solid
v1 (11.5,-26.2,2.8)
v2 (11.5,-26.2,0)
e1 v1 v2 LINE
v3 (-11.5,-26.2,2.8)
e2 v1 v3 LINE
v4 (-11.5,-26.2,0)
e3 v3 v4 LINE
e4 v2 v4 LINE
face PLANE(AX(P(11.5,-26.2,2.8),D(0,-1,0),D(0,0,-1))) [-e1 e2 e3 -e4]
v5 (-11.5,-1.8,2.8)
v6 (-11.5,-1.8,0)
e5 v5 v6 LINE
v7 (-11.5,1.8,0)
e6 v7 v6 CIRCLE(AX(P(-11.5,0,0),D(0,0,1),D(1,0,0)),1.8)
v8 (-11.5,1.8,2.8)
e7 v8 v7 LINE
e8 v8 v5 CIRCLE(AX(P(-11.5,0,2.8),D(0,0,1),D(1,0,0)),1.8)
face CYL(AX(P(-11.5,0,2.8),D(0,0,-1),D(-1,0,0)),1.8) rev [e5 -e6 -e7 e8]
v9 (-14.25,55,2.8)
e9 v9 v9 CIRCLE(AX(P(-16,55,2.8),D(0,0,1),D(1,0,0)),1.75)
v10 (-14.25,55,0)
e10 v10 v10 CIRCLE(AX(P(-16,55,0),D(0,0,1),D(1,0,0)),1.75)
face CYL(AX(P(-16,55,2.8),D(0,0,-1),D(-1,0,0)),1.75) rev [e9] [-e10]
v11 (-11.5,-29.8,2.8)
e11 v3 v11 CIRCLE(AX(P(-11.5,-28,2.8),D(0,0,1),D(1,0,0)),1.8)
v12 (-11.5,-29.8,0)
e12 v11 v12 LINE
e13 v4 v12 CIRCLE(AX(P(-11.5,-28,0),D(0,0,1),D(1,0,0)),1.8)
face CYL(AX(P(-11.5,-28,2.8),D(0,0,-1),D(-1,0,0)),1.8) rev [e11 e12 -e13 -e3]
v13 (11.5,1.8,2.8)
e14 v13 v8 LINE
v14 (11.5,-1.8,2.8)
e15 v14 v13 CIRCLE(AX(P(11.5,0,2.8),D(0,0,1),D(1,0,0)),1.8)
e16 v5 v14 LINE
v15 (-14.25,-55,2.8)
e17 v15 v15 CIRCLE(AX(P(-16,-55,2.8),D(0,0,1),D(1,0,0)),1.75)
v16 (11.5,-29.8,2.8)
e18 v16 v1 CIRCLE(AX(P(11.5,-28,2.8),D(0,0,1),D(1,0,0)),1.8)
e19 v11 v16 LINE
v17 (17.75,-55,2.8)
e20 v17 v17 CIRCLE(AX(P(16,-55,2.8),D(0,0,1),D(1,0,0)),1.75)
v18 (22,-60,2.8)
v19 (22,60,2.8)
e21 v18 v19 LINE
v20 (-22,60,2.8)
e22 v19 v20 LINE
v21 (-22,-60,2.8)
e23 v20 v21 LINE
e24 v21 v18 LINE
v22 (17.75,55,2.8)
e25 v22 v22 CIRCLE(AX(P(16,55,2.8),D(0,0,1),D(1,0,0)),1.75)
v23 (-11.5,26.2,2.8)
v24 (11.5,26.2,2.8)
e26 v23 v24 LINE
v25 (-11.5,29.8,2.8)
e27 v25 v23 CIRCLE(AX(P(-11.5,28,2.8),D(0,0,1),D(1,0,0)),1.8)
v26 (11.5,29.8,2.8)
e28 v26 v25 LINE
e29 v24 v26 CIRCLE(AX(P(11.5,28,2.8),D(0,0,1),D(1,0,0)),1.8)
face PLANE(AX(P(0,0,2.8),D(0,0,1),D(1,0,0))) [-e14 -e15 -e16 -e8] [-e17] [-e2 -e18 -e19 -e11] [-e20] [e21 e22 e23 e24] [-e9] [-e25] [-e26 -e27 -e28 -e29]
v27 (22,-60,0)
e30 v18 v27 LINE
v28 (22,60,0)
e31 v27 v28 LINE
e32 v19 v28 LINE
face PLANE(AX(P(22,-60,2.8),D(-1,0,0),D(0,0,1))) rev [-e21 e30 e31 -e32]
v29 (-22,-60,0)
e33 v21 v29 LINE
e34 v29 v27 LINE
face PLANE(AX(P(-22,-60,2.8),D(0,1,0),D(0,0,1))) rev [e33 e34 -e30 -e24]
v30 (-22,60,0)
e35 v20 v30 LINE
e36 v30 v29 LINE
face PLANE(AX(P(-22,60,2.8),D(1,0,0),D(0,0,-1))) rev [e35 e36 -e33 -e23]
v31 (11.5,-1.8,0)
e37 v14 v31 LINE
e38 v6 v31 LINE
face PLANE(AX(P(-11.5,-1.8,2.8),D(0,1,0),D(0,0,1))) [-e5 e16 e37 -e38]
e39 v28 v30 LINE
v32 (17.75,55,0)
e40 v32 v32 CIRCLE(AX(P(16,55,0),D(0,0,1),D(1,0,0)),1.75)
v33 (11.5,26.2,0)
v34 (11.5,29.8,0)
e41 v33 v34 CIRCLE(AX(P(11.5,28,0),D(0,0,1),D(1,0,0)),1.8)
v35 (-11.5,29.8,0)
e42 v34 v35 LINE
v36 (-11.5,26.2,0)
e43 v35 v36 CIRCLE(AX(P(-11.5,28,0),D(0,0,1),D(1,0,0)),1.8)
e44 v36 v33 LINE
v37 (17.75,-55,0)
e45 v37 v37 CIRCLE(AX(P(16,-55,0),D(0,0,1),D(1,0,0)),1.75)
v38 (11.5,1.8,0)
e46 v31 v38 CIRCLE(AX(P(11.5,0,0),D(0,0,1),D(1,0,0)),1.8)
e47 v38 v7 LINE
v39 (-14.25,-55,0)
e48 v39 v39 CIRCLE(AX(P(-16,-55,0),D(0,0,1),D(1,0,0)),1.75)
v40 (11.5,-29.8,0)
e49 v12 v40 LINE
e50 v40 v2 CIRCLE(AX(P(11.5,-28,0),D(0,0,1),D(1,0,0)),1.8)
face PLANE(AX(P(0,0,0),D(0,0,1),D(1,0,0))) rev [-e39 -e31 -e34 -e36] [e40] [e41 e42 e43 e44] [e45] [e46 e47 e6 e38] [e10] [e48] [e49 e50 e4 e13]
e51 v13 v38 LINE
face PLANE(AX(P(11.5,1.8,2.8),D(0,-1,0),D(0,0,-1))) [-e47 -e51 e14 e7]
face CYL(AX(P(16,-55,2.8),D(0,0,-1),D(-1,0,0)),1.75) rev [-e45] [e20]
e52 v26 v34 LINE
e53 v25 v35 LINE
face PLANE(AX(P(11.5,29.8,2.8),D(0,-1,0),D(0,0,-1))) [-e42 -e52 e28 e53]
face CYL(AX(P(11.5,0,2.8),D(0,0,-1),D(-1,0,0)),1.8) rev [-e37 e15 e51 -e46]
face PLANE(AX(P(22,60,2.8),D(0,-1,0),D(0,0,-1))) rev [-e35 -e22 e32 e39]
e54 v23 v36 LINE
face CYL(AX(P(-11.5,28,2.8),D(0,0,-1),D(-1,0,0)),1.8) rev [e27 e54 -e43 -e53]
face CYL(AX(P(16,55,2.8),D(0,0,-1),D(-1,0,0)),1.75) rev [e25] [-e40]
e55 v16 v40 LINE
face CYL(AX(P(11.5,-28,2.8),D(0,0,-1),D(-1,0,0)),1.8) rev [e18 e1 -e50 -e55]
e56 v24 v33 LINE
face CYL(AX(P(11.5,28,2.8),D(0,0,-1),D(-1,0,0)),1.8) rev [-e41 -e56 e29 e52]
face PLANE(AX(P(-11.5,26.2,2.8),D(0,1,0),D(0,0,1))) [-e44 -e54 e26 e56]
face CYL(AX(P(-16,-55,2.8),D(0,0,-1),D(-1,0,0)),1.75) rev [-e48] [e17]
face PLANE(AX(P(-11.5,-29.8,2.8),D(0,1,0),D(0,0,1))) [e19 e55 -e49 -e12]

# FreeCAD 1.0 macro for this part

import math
import FreeCAD as App
import Part
import Sketcher
from FreeCAD import Vector
Q = App.Units.Quantity


def add_polygon(sketch, points):
    """Adds a closed chain of lines whose ends are joined by coincident constraints."""
    first, n = sketch.GeometryCount, len(points)
    for a, b in zip(points, points[1:] + points[:1]):
        sketch.addGeometry(Part.LineSegment(App.Vector(*a, 0), App.Vector(*b, 0)), False)
    for i in range(n):
        sketch.addConstraint(Sketcher.Constraint("Coincident", first + i, 2, first + (i + 1) % n, 1))

doc = App.newDocument("Part")
params = doc.addObject("Spreadsheet::Sheet", "Params")
for row, (alias, value) in enumerate([
    ("sketch1_diameter", "3.5 mm"),
    ("sketch1_radius", "1.8 mm"),
    ("sketch1_width", "44 mm"),
    ("sketch1_width2", "23 mm"),
    ("sketch1_height", "120 mm"),
    ("pad1_length", "2.8 mm"),
], start=1):
    params.set(f"A{row}", alias)
    params.set(f"B{row}", "=" + value)
    params.setAlias(f"B{row}", alias)

body = doc.addObject("PartDesign::Body", "Body")

# Sketch on XY plane
sketch1 = body.newObject("Sketcher::SketchObject", "Sketch")
sketch1.AttachmentSupport = (doc.getObject("XY_Plane"), [""])
sketch1.MapMode = "FlatFace"
add_polygon(sketch1, [(-22, 60), (-22, -60), (22, -60), (22, 60)])  # lines 0-3
sketch1.addGeometry(Part.Circle(Vector(-16, -55, 0), Vector(0, 0, 1), 1.8), False)  # 4
sketch1.addGeometry(Part.Circle(Vector(16, -55, 0), Vector(0, 0, 1), 1.8), False)  # 5
sketch1.addGeometry(Part.LineSegment(Vector(11.5, -29.8, 0), Vector(-11.5, -29.8, 0)), False)  # 6
sketch1.addGeometry(Part.ArcOfCircle(Part.Circle(Vector(-11.5, -28, 0), Vector(0, 0, 1), 1.8), math.radians(90), math.radians(270)), False)  # 7
sketch1.addGeometry(Part.LineSegment(Vector(-11.5, -26.2, 0), Vector(11.5, -26.2, 0)), False)  # 8
sketch1.addGeometry(Part.ArcOfCircle(Part.Circle(Vector(11.5, -28, 0), Vector(0, 0, 1), 1.8), math.radians(-90), math.radians(90)), False)  # 9
sketch1.addGeometry(Part.Circle(Vector(-16, 55, 0), Vector(0, 0, 1), 1.8), False)  # 10
sketch1.addGeometry(Part.LineSegment(Vector(11.5, -1.8, 0), Vector(-11.5, -1.8, 0)), False)  # 11
sketch1.addGeometry(Part.ArcOfCircle(Part.Circle(Vector(-11.5, 0, 0), Vector(0, 0, 1), 1.8), math.radians(90), math.radians(270)), False)  # 12
sketch1.addGeometry(Part.LineSegment(Vector(-11.5, 1.8, 0), Vector(11.5, 1.8, 0)), False)  # 13
sketch1.addGeometry(Part.ArcOfCircle(Part.Circle(Vector(11.5, 0, 0), Vector(0, 0, 1), 1.8), math.radians(-90), math.radians(90)), False)  # 14
sketch1.addGeometry(Part.LineSegment(Vector(11.5, 26.2, 0), Vector(-11.5, 26.2, 0)), False)  # 15
sketch1.addGeometry(Part.ArcOfCircle(Part.Circle(Vector(-11.5, 28, 0), Vector(0, 0, 1), 1.8), math.radians(90), math.radians(270)), False)  # 16
sketch1.addGeometry(Part.LineSegment(Vector(-11.5, 29.8, 0), Vector(11.5, 29.8, 0)), False)  # 17
sketch1.addGeometry(Part.ArcOfCircle(Part.Circle(Vector(11.5, 28, 0), Vector(0, 0, 1), 1.8), math.radians(-90), math.radians(90)), False)  # 18
sketch1.addGeometry(Part.Circle(Vector(16, 55, 0), Vector(0, 0, 1), 1.8), False)  # 19
sketch1.addConstraint(Sketcher.Constraint("Tangent", 6, 2, 7, 2))
sketch1.addConstraint(Sketcher.Constraint("Tangent", 7, 1, 8, 1))
sketch1.addConstraint(Sketcher.Constraint("Tangent", 8, 2, 9, 2))
sketch1.addConstraint(Sketcher.Constraint("Tangent", 9, 1, 6, 1))
sketch1.addConstraint(Sketcher.Constraint("Tangent", 11, 2, 12, 2))
sketch1.addConstraint(Sketcher.Constraint("Tangent", 12, 1, 13, 1))
sketch1.addConstraint(Sketcher.Constraint("Tangent", 13, 2, 14, 2))
sketch1.addConstraint(Sketcher.Constraint("Tangent", 14, 1, 11, 1))
sketch1.addConstraint(Sketcher.Constraint("Tangent", 15, 2, 16, 2))
sketch1.addConstraint(Sketcher.Constraint("Tangent", 16, 1, 17, 1))
sketch1.addConstraint(Sketcher.Constraint("Tangent", 17, 2, 18, 2))
sketch1.addConstraint(Sketcher.Constraint("Tangent", 18, 1, 15, 1))
sketch1.addConstraint(Sketcher.Constraint("Vertical", 0))
sketch1.addConstraint(Sketcher.Constraint("Horizontal", 1))
sketch1.addConstraint(Sketcher.Constraint("Vertical", 2))
sketch1.addConstraint(Sketcher.Constraint("Horizontal", 3))
sketch1.addConstraint(Sketcher.Constraint("Horizontal", 6))
sketch1.addConstraint(Sketcher.Constraint("Horizontal", 8))
sketch1.addConstraint(Sketcher.Constraint("Horizontal", 11))
sketch1.addConstraint(Sketcher.Constraint("Horizontal", 13))
sketch1.addConstraint(Sketcher.Constraint("Horizontal", 15))
sketch1.addConstraint(Sketcher.Constraint("Horizontal", 17))
sketch1.addConstraint(Sketcher.Constraint("Equal", 4, 5))
sketch1.addConstraint(Sketcher.Constraint("Equal", 5, 10))
sketch1.addConstraint(Sketcher.Constraint("Equal", 9, 12))
sketch1.addConstraint(Sketcher.Constraint("Equal", 14, 16))
sketch1.addConstraint(Sketcher.Constraint("Equal", 10, 19))
sketch1.addConstraint(Sketcher.Constraint("Symmetric", 5, 3, 10, 3, -1, 1))
sketch1.addConstraint(Sketcher.Constraint("Symmetric", 12, 3, 14, 3, -1, 1))
sketch1.addConstraint(Sketcher.Constraint("Symmetric", 9, 3, 16, 3, -1, 1))
sketch1.addConstraint(Sketcher.Constraint("Symmetric", 4, 3, 19, 3, -1, 1))
sketch1.addConstraint(Sketcher.Constraint("Symmetric", 0, 2, 2, 2, -1, 1))
sketch1.addConstraint(Sketcher.Constraint("Symmetric", 4, 3, 5, 3, -2))
sketch1.addConstraint(Sketcher.Constraint("Vertical", 7, 3, 12, 3))
sketch1.addConstraint(Sketcher.Constraint("Vertical", 9, 3, 14, 3))
sketch1.addConstraint(Sketcher.Constraint("Vertical", 14, 3, 18, 3))
sketch1.addConstraint(Sketcher.Constraint("Diameter", 4, Q("3.5 mm")))
sketch1.addConstraint(Sketcher.Constraint("Radius", 7, Q("1.8 mm")))
sketch1.addConstraint(Sketcher.Constraint("DistanceX", 1, 1, 1, 2, Q("44 mm")))
sketch1.addConstraint(Sketcher.Constraint("DistanceX", 6, 2, 6, 1, Q("23 mm")))
sketch1.addConstraint(Sketcher.Constraint("DistanceY", 0, 2, 0, 1, Q("120 mm")))
sketch1.addConstraint(Sketcher.Constraint("DistanceX", 4, 3, -1, 1, Q("16 mm")))
sketch1.addConstraint(Sketcher.Constraint("DistanceY", 4, 3, -1, 1, Q("55 mm")))
sketch1.addConstraint(Sketcher.Constraint("DistanceY", 7, 3, -1, 1, Q("28 mm")))
sketch1.setExpression("Constraints[40]", "Params.sketch1_diameter")
sketch1.setExpression("Constraints[41]", "Params.sketch1_radius")
sketch1.setExpression("Constraints[42]", "Params.sketch1_width")
sketch1.setExpression("Constraints[43]", "Params.sketch1_width2")
sketch1.setExpression("Constraints[44]", "Params.sketch1_height")
pad1 = body.newObject("PartDesign::Pad", "Pad")
pad1.Profile = sketch1
pad1.setExpression("Length", "Params.pad1_length")

doc.recompute()
